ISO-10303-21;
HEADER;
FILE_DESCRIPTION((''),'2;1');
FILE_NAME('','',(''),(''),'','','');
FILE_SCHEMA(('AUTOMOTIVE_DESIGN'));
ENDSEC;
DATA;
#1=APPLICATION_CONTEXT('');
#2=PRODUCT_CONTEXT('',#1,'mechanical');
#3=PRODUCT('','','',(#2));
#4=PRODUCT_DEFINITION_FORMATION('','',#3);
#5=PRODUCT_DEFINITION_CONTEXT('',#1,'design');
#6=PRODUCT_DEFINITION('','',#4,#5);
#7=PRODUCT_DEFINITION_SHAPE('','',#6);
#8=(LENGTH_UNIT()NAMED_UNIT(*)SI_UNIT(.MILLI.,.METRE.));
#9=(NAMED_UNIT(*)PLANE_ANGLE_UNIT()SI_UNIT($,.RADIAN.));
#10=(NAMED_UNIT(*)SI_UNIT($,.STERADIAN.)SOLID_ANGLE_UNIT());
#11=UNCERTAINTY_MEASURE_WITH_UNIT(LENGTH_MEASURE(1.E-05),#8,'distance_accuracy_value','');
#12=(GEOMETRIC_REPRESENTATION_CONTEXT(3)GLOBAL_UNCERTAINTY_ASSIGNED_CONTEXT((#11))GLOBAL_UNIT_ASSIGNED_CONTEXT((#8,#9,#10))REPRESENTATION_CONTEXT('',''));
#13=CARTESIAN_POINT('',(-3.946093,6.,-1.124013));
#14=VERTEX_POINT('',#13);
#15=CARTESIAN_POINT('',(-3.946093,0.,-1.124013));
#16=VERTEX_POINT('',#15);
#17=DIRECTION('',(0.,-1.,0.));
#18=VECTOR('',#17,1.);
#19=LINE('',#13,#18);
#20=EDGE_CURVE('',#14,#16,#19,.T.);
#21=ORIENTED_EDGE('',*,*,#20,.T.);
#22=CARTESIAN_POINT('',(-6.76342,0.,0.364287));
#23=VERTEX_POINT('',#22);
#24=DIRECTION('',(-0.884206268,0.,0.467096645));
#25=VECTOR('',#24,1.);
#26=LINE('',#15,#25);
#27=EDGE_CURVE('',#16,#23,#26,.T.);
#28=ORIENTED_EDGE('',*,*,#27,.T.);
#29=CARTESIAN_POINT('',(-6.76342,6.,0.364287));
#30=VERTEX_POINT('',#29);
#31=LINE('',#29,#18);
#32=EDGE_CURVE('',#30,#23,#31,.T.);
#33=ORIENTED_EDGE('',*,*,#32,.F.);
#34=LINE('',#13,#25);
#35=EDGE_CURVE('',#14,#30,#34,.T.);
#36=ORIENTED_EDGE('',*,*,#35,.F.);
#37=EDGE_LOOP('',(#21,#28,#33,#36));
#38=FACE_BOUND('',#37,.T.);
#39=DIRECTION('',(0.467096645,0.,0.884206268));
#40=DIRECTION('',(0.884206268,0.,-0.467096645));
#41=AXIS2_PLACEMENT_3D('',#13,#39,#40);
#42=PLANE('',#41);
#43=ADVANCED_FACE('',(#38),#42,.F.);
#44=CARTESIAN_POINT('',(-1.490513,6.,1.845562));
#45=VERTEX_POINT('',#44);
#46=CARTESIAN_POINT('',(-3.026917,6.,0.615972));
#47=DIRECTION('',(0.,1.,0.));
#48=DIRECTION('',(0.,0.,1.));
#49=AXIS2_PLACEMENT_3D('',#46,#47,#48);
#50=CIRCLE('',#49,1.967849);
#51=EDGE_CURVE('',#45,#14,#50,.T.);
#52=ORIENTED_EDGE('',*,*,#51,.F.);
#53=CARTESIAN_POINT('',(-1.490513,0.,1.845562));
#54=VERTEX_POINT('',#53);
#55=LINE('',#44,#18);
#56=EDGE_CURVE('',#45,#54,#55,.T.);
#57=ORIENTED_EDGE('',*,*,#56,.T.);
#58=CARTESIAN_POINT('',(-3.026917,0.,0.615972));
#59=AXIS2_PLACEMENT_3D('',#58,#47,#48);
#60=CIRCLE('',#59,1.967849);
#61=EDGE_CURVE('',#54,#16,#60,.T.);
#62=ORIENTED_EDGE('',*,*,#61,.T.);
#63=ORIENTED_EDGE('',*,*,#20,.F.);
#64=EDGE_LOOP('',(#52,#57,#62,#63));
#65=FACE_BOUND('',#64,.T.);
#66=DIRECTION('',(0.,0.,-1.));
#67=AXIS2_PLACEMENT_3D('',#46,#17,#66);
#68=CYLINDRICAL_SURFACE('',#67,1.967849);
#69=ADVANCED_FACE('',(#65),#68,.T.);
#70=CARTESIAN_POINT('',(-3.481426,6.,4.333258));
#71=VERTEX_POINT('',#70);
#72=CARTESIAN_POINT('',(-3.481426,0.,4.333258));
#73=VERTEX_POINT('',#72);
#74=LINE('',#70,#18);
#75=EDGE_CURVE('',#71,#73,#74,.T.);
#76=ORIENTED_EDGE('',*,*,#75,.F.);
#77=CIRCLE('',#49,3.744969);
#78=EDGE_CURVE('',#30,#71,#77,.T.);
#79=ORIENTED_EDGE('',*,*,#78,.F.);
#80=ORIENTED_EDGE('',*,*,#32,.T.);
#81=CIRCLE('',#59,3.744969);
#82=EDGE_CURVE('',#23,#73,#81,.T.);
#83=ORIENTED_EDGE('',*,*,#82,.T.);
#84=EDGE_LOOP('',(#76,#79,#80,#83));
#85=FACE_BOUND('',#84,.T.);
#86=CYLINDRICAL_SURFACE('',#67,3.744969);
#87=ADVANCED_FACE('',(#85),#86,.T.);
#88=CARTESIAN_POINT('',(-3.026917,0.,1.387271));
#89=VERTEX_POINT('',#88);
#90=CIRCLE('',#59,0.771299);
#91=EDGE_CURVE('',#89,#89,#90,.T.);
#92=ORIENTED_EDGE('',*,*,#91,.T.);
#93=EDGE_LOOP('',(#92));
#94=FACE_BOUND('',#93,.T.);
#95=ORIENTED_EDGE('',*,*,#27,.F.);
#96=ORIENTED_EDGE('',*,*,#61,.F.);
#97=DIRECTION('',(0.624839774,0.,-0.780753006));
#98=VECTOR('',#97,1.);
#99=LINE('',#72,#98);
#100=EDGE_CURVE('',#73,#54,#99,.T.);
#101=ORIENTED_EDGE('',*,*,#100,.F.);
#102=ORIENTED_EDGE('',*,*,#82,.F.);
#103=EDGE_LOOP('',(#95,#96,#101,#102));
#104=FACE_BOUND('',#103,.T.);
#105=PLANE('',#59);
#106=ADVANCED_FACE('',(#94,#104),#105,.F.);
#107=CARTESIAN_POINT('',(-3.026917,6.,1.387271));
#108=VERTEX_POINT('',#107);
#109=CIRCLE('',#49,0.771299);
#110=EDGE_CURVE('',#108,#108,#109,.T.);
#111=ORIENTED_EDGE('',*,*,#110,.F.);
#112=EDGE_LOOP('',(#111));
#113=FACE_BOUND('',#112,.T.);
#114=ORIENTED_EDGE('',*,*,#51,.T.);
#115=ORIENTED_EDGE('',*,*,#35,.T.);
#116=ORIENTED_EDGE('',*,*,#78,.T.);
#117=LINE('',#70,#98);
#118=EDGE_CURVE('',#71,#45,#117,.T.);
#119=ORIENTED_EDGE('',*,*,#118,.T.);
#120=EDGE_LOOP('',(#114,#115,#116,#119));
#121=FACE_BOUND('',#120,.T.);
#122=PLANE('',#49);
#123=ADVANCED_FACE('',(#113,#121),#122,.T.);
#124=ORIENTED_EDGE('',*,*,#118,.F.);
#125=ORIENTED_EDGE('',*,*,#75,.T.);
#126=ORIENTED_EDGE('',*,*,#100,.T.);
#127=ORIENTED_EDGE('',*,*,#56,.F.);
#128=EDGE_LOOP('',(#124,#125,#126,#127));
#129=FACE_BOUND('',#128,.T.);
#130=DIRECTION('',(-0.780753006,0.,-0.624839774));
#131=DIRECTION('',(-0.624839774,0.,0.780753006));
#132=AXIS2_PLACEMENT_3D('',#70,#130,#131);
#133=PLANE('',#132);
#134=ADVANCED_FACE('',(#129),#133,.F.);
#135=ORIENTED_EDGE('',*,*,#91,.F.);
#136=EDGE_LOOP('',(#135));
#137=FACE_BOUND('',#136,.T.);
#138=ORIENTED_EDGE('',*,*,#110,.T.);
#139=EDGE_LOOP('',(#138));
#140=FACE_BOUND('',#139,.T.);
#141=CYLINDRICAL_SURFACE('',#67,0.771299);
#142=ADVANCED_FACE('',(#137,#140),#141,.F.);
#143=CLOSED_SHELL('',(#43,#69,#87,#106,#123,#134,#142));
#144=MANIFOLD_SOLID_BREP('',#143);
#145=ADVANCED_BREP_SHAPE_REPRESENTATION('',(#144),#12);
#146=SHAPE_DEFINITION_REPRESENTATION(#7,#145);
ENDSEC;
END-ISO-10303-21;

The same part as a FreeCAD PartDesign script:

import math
import FreeCAD as App
import Part
import Sketcher

V = App.Vector
Q = App.Units.Quantity

doc = App.newDocument("Part")
body = doc.addObject("PartDesign::Body", "Body")

# Sketch on XZ plane
sketch1 = doc.addObject("Sketcher::SketchObject", "Sketch")
body.addObject(sketch1)
sketch1.AttachmentSupport = (doc.XZ_Plane, [""])
sketch1.MapMode = "FlatFace"
sketch1.addGeometry(Part.LineSegment(V(-3.5, 4.3, 0), V(-1.5, 1.8, 0)), False)
sketch1.addGeometry(Part.ArcOfCircle(Part.Circle(V(-3, 0.6, 0), V(0, 0, 1), 2), math.radians(-118), math.radians(39)), False)
sketch1.addGeometry(Part.LineSegment(V(-3.9, -1.1, 0), V(-6.8, 0.4, 0)), False)
sketch1.addGeometry(Part.ArcOfCircle(Part.Circle(V(-3, 0.6, 0), V(0, 0, 1), 3.7), math.radians(97), math.radians(184)), False)
sketch1.addGeometry(Part.Circle(V(-3, 0.6, 0), V(0, 0, 1), 0.8), False)
sketch1.addConstraint(Sketcher.Constraint("Tangent", 0, 2, 1, 2))
sketch1.addConstraint(Sketcher.Constraint("Tangent", 1, 1, 2, 1))
sketch1.addConstraint(Sketcher.Constraint("Coincident", 2, 2, 3, 2))
sketch1.addConstraint(Sketcher.Constraint("Coincident", 3, 1, 0, 1))
sketch1.addConstraint(Sketcher.Constraint("Coincident", 3, 3, 1, 3))
sketch1.addConstraint(Sketcher.Constraint("Coincident", 4, 3, 1, 3))
sketch1.addConstraint(Sketcher.Constraint("Radius", 1, Q("1.967849 mm")))
sketch1.addConstraint(Sketcher.Constraint("Radius", 3, Q("3.744969 mm")))
sketch1.addConstraint(Sketcher.Constraint("Diameter", 4, Q("1.542598 mm")))
sketch1.addConstraint(Sketcher.Constraint("DistanceY", 1, 1, 2, 2, Q("1.4883 mm")))
sketch1.addConstraint(Sketcher.Constraint("DistanceY", -1, 1, 1, 3, Q("0.615972 mm")))
sketch1.addConstraint(Sketcher.Constraint("DistanceX", 2, 2, -1, 1, Q("6.76342 mm")))
sketch1.addConstraint(Sketcher.Constraint("DistanceY", -1, 1, 3, 1, Q("4.333258 mm")))
pad1 = doc.addObject("PartDesign::Pad", "Pad")
body.addObject(pad1)
pad1.Profile = sketch1
pad1.Length = 6
pad1.Reversed = True

doc.recompute()
